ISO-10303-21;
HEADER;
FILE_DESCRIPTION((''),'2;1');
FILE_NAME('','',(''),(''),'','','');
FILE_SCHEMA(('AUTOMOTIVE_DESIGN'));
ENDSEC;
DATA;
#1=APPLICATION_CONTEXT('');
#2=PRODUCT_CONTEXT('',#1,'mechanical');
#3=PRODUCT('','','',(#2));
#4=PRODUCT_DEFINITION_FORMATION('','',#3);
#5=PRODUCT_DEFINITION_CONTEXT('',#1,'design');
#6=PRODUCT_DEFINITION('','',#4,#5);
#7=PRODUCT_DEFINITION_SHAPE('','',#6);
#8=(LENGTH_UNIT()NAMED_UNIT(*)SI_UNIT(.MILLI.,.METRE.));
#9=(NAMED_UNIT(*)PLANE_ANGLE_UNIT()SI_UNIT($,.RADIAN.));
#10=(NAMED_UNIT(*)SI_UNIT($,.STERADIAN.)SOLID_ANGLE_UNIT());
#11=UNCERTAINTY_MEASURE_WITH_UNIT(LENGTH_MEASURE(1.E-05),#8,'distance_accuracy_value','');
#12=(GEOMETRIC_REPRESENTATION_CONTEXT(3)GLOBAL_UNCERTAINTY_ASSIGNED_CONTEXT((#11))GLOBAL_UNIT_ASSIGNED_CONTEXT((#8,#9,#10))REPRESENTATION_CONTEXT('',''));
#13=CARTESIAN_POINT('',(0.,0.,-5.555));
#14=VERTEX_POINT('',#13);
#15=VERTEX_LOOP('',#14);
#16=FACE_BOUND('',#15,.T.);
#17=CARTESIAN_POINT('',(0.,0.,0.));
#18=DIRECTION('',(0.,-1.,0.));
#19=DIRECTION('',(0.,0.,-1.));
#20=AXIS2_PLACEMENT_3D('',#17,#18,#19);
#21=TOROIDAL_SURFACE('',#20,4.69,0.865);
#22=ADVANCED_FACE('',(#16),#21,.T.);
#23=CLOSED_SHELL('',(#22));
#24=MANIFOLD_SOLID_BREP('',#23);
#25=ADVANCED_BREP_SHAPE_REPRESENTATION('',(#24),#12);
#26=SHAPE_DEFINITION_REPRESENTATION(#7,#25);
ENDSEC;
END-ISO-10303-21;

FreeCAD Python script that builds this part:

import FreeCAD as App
import Part
import Sketcher

V = App.Vector

doc = App.newDocument("Part")
params = doc.addObject("Spreadsheet::Sheet", "Params")
for row, (alias, value) in enumerate([
    ("sketch1_diameter", "1.73 mm"),
    ("revolution_angle", "360 deg"),
], start=1):
    params.set(f"A{row}", alias)
    params.set(f"B{row}", "=" + value)
    params.setAlias(f"B{row}", alias)

body = doc.addObject("PartDesign::Body", "Body")

sketch1 = body.newObject("Sketcher::SketchObject", "Sketch")
sketch1.AttachmentSupport = (doc.getObject("XY_Plane"), [""])
sketch1.MapMode = "FlatFace"
sketch1.addGeometry(Part.Circle(V(4.7, 0, 0), V(0, 0, 1), 0.9), False)
sketch1.addConstraint(Sketcher.Constraint("PointOnObject", 0, 3, -1))
sketch1.addConstraint(Sketcher.Constraint("Diameter", 0, 1.73))
sketch1.addConstraint(Sketcher.Constraint("DistanceX", -1, 1, 0, 3, 4.69))
sketch1.setExpression("Constraints[1]", "Params.sketch1_diameter")
revolution = body.newObject("PartDesign::Revolution", "Revolution")
revolution.Profile = sketch1
revolution.ReferenceAxis = (sketch1, ["V_Axis"])
revolution.setExpression("Angle", "Params.revolution_angle")

doc.recompute()
